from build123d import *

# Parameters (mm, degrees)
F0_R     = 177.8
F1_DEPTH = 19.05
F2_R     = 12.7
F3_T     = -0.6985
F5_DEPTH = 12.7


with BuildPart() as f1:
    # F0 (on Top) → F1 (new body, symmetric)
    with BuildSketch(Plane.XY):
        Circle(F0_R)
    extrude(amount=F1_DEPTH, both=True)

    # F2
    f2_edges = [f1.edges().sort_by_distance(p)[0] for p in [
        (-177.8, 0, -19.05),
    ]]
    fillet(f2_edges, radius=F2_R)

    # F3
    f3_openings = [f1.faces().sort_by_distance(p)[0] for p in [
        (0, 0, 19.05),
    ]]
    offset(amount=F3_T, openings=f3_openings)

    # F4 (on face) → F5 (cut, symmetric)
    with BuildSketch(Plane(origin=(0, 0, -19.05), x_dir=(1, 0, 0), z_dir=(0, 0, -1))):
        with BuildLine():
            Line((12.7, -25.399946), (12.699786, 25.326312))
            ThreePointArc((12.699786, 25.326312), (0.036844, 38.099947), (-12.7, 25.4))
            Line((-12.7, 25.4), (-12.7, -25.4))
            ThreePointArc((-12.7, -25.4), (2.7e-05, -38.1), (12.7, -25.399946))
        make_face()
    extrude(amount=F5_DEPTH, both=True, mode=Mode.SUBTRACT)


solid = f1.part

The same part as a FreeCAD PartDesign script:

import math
import FreeCAD as App
import Part
import Sketcher
Q = App.Units.Quantity


def edges_at(feature, points):
    """Names of the edges that pass closest to the given points."""
    edges = feature.Shape.Edges
    near = lambda p: min(range(len(edges)), key=lambda i: edges[i].distToShape(Part.Vertex(*p))[0])
    return sorted({f"Edge{near(p) + 1}" for p in points})


def faces_at(feature, points):
    """Names of the faces that lie closest to the given points."""
    faces = feature.Shape.Faces
    near = lambda p: min(range(len(faces)), key=lambda i: faces[i].distToShape(Part.Vertex(*p))[0])
    return sorted({f"Face{near(p) + 1}" for p in points})

doc = App.newDocument("Part")
body = doc.addObject("PartDesign::Body", "Body")

# Sketch on XY plane
sketch1 = body.newObject("Sketcher::SketchObject", "Sketch")
sketch1.AttachmentSupport = (doc.getObject("XY_Plane"), [""])
sketch1.MapMode = "FlatFace"
sketch1.addGeometry(Part.Circle(App.Vector(0, 0, 0), App.Vector(0, 0, 1), 177.8), False)
sketch1.addConstraint([
    Sketcher.Constraint("Coincident", 0, 3, -1, 1),
    Sketcher.Constraint("Diameter", 0, Q("14 in")),
])
pad1 = body.newObject("PartDesign::Pad", "Pad")
pad1.Profile = sketch1
pad1.Length = Q("1.5 in")
pad1.Midplane = True
doc.recompute()

fillet = body.newObject("PartDesign::Fillet", "Fillet")
fillet.Base = (pad1, edges_at(pad1, [(-177.8, 0, -19.05)]))
fillet.Radius = Q("0.5 in")
doc.recompute()

thickness = body.newObject("PartDesign::Thickness", "Thickness")
thickness.Base = (fillet, faces_at(fillet, [(0, 0, 19.05)]))
thickness.Value = Q("0.0275 in")
thickness.Reversed = True
thickness.Join = "Arc"

# Sketch on XY plane
sketch2 = body.newObject("Sketcher::SketchObject", "Sketch001")
sketch2.AttachmentSupport = (doc.getObject("XY_Plane"), [""])
sketch2.MapMode = "FlatFace"
sketch2.AttachmentOffset = App.Placement(App.Vector(0, 0, -0.75 * 25.4), App.Rotation())
sketch2.addGeometry([
    Part.LineSegment(App.Vector(12.7, 25.399946, 0), App.Vector(12.699786, -25.326312, 0)),
    Part.ArcOfCircle(Part.Circle(App.Vector(0, -25.400001, 0), App.Vector(0, 0, 1), 12.7), math.radians(179.999998), math.radians(360.332446)),
    Part.LineSegment(App.Vector(-12.7, -25.4, 0), App.Vector(-12.7, 25.4, 0)),
    Part.ArcOfCircle(Part.Circle(App.Vector(0, 25.4, 0), App.Vector(0, 0, 1), 12.7), math.radians(-0.000244), math.radians(180)),
], False)
sketch2.addConstraint([
    Sketcher.Constraint("Coincident", 0, 2, 1, 2),
    Sketcher.Constraint("Tangent", 1, 1, 2, 1),
    Sketcher.Constraint("Tangent", 2, 2, 3, 2),
    Sketcher.Constraint("Tangent", 3, 1, 0, 1),
    Sketcher.Constraint("Vertical", 2),
    Sketcher.Constraint("Equal", 1, 3),
    Sketcher.Constraint("Symmetric", 1, 3, 3, 3, -1, 1),
    Sketcher.Constraint("Radius", 1, Q("0.5 in")),
    Sketcher.Constraint("DistanceY", 2, 1, 2, 2, Q("2 in")),
    Sketcher.Constraint("Distance", 0, Q("50.726258 mm")),
])
pocket1 = body.newObject("PartDesign::Pocket", "Pocket")
pocket1.Profile = sketch2
pocket1.Length = Q("1 in")
pocket1.Midplane = True

doc.recompute()
